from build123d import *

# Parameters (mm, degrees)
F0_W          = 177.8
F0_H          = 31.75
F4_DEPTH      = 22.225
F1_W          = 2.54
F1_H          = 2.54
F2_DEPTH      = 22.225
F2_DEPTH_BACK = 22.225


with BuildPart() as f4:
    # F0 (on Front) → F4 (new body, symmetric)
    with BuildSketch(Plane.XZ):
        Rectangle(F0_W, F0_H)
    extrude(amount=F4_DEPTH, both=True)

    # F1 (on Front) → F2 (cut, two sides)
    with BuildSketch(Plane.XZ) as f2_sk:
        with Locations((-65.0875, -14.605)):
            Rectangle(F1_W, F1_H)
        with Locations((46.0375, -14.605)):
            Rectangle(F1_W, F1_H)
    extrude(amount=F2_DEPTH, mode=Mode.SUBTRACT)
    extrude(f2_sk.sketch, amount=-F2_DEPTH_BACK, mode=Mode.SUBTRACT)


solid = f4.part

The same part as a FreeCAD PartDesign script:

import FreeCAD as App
import Part
import Sketcher

V = App.Vector
Q = App.Units.Quantity


def add_polygon(sketch, points):
    """Adds a closed chain of lines whose ends are joined by coincident constraints."""
    first, n = sketch.GeometryCount, len(points)
    for a, b in zip(points, points[1:] + points[:1]):
        sketch.addGeometry(Part.LineSegment(App.Vector(*a, 0), App.Vector(*b, 0)), False)
    for i in range(n):
        sketch.addConstraint(Sketcher.Constraint("Coincident", first + i, 2, first + (i + 1) % n, 1))

doc = App.newDocument("Part")
body = doc.addObject("PartDesign::Body", "Body")

# Sketch on XZ plane
sketch1 = body.newObject("Sketcher::SketchObject", "Sketch")
sketch1.AttachmentSupport = (doc.getObject("XZ_Plane"), [""])
sketch1.MapMode = "FlatFace"
add_polygon(sketch1, [(-89, 16), (-89, -16), (89, -16), (89, 16)])  # lines 0-3
sketch1.addConstraint([
    Sketcher.Constraint("Vertical", 0),
    Sketcher.Constraint("Horizontal", 1),
    Sketcher.Constraint("Vertical", 2),
    Sketcher.Constraint("Horizontal", 3),
    Sketcher.Constraint("Symmetric", 0, 2, 2, 2, -1, 1),
    Sketcher.Constraint("DistanceX", 1, 1, 1, 2, Q("7 in")),
    Sketcher.Constraint("DistanceY", 0, 2, 0, 1, Q("1.25 in")),
])
pad1 = body.newObject("PartDesign::Pad", "Pad")
pad1.Profile = sketch1
pad1.Length = Q("1.75 in")
pad1.Midplane = True

# Sketch on XZ plane
sketch2 = body.newObject("Sketcher::SketchObject", "Sketch001")
sketch2.AttachmentSupport = (doc.getObject("XZ_Plane"), [""])
sketch2.MapMode = "FlatFace"
add_polygon(sketch2, [(-66.4, -13.3), (-66.4, -15.9), (-63.8, -15.9), (-63.8, -13.3)])  # lines 0-3
add_polygon(sketch2, [(44.8, -13.3), (44.8, -15.9), (47.3, -15.9), (47.3, -13.3)])  # lines 4-7
sketch2.addConstraint([
    Sketcher.Constraint("Vertical", 0),
    Sketcher.Constraint("Horizontal", 1),
    Sketcher.Constraint("Vertical", 2),
    Sketcher.Constraint("Horizontal", 3),
    Sketcher.Constraint("Vertical", 4),
    Sketcher.Constraint("Horizontal", 5),
    Sketcher.Constraint("Vertical", 6),
    Sketcher.Constraint("Horizontal", 7),
    Sketcher.Constraint("Horizontal", 1, 2, 4, 2),
    Sketcher.Constraint("Horizontal", 3, 2, 6, 2),
    Sketcher.Constraint("Equal", 3, 5),
    Sketcher.Constraint("Equal", 7, 0),
    Sketcher.Constraint("DistanceX", 1, 1, 1, 2, Q("0.1 in")),
    Sketcher.Constraint("DistanceY", 0, 2, -1, 1, Q("0.625 in")),
    Sketcher.Constraint("DistanceX", 1, 2, 4, 2, Q("4.275 in")),
    Sketcher.Constraint("DistanceX", 0, 2, -1, 1, Q("2.6125 in")),
])
pocket1 = body.newObject("PartDesign::Pocket", "Pocket")
pocket1.Profile = sketch2
pocket1.Type = "ThroughAll"
pocket1.Midplane = True

doc.recompute()
